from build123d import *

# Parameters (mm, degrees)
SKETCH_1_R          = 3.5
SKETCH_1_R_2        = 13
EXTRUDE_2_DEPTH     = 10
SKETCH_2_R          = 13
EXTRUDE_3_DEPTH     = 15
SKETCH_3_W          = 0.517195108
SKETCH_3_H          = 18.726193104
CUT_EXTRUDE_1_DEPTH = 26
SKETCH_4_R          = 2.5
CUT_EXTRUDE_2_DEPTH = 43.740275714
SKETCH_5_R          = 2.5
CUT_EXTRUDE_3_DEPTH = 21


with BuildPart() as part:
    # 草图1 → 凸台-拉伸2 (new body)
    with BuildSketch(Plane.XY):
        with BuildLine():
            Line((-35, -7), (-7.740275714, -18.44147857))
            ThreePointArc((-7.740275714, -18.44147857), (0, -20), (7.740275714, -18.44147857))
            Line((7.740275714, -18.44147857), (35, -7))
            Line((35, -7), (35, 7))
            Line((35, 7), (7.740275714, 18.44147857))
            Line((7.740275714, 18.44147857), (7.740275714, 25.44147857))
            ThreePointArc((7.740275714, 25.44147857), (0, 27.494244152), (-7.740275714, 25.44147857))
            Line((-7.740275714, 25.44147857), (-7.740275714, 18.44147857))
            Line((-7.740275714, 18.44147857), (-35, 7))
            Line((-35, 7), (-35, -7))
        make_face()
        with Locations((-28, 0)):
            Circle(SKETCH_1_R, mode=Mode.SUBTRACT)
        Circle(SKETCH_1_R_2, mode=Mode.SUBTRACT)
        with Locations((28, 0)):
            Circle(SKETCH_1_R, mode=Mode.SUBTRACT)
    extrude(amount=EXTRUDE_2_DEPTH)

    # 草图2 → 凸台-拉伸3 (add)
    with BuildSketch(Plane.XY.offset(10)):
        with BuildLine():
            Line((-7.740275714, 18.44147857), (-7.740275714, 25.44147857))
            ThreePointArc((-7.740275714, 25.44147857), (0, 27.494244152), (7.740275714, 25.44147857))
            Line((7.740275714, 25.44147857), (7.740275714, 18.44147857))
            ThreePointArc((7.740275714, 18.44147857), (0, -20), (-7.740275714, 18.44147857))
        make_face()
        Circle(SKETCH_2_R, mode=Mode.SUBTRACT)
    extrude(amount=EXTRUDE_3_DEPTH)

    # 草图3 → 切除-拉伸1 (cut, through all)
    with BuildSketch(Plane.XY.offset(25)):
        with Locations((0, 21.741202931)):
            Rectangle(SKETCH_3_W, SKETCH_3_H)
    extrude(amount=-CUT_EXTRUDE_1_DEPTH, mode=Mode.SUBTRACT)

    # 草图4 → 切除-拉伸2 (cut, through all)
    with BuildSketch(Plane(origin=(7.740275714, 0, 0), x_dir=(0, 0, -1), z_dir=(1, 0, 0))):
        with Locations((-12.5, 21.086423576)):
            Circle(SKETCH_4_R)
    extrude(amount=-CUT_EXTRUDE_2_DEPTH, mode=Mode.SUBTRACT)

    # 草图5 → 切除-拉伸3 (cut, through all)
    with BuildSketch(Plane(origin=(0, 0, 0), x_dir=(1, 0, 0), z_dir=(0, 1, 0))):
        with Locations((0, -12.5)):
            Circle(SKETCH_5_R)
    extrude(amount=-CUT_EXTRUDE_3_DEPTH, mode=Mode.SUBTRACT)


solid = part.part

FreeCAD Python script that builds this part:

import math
import FreeCAD as App
import Part
import Sketcher
Q = App.Units.Quantity


def add_polygon(sketch, points):
    """Adds a closed chain of lines whose ends are joined by coincident constraints."""
    first, n = sketch.GeometryCount, len(points)
    for a, b in zip(points, points[1:] + points[:1]):
        sketch.addGeometry(Part.LineSegment(App.Vector(*a, 0), App.Vector(*b, 0)), False)
    for i in range(n):
        sketch.addConstraint(Sketcher.Constraint("Coincident", first + i, 2, first + (i + 1) % n, 1))

doc = App.newDocument("Part")
body = doc.addObject("PartDesign::Body", "Body")

# Sketch on XY plane
sketch1 = body.newObject("Sketcher::SketchObject", "Sketch")
sketch1.AttachmentSupport = (doc.getObject("XY_Plane"), [""])
sketch1.MapMode = "FlatFace"
sketch1.addGeometry([
    Part.LineSegment(App.Vector(-35, -7, 0), App.Vector(-7.7, -18.4, 0)),  # 0
    Part.ArcOfCircle(Part.Circle(App.Vector(0, 0, 0), App.Vector(0, 0, 1), 20), math.radians(-113), math.radians(-67)),  # 1
    Part.LineSegment(App.Vector(7.7, -18.4, 0), App.Vector(35, -7, 0)),  # 2
    Part.LineSegment(App.Vector(35, -7, 0), App.Vector(35, 7, 0)),  # 3
    Part.LineSegment(App.Vector(35, 7, 0), App.Vector(7.7, 18.4, 0)),  # 4
    Part.LineSegment(App.Vector(7.7, 18.4, 0), App.Vector(7.7, 25.4, 0)),  # 5
    Part.ArcOfCircle(Part.Circle(App.Vector(0, 11.9, 0), App.Vector(0, 0, 1), 15.6), math.radians(60), math.radians(120)),  # 6
    Part.LineSegment(App.Vector(-7.7, 25.4, 0), App.Vector(-7.7, 18.4, 0)),  # 7
    Part.LineSegment(App.Vector(-7.7, 18.4, 0), App.Vector(-35, 7, 0)),  # 8
    Part.LineSegment(App.Vector(-35, 7, 0), App.Vector(-35, -7, 0)),  # 9
    Part.Circle(App.Vector(-28, 0, 0), App.Vector(0, 0, 1), 3.5),  # 10
    Part.Circle(App.Vector(0, 0, 0), App.Vector(0, 0, 1), 13),  # 11
    Part.Circle(App.Vector(28, 0, 0), App.Vector(0, 0, 1), 3.5),  # 12
], False)
sketch1.addConstraint([
    Sketcher.Constraint("Tangent", 0, 2, 1, 1),
    Sketcher.Constraint("Tangent", 1, 2, 2, 1),
    Sketcher.Constraint("Coincident", 2, 2, 3, 1),
    Sketcher.Constraint("Coincident", 3, 2, 4, 1),
    Sketcher.Constraint("Coincident", 4, 2, 5, 1),
    Sketcher.Constraint("Coincident", 5, 2, 6, 1),
    Sketcher.Constraint("Coincident", 6, 2, 7, 1),
    Sketcher.Constraint("Coincident", 7, 2, 8, 1),
    Sketcher.Constraint("Coincident", 8, 2, 9, 1),
    Sketcher.Constraint("Coincident", 9, 2, 0, 1),
    Sketcher.Constraint("Vertical", 3),
    Sketcher.Constraint("Vertical", 5),
    Sketcher.Constraint("Vertical", 7),
    Sketcher.Constraint("Vertical", 9),
    Sketcher.Constraint("Coincident", 1, 3, -1, 1),
    Sketcher.Constraint("Coincident", 11, 3, -1, 1),
    Sketcher.Constraint("Equal", 10, 12),
    Sketcher.Constraint("Symmetric", 10, 3, 12, 3, -1, 1),
    Sketcher.Constraint("Symmetric", 0, 2, 4, 2, -1, 1),
    Sketcher.Constraint("Symmetric", 1, 2, 7, 2, -1, 1),
    Sketcher.Constraint("Symmetric", 2, 2, 8, 2, -1, 1),
    Sketcher.Constraint("Symmetric", 5, 2, 6, 2, -2),
    Sketcher.Constraint("PointOnObject", 10, 3, -1),
    Sketcher.Constraint("Parallel", 0, 4),
    Sketcher.Constraint("Diameter", 10, Q("7 mm")),
    Sketcher.Constraint("Diameter", 11, Q("26 mm")),
    Sketcher.Constraint("Radius", 1, Q("20 mm")),
    Sketcher.Constraint("DistanceY", 3, 1, 3, 2, Q("14 mm")),
    Sketcher.Constraint("DistanceY", 5, 1, 5, 2, Q("7 mm")),
    Sketcher.Constraint("DistanceX", 10, 3, -1, 1, Q("28 mm")),
    Sketcher.Constraint("DistanceX", -1, 1, 2, 2, Q("35 mm")),
    Sketcher.Constraint("Radius", 6, Q("15.619347 mm")),
])
pad1 = body.newObject("PartDesign::Pad", "Pad")
pad1.Profile = sketch1
pad1.Length = 10

# Sketch on XY plane
sketch2 = body.newObject("Sketcher::SketchObject", "Sketch001")
sketch2.AttachmentSupport = (doc.getObject("XY_Plane"), [""])
sketch2.MapMode = "FlatFace"
sketch2.AttachmentOffset = App.Placement(App.Vector(0, 0, 10), App.Rotation())
sketch2.addGeometry([
    Part.LineSegment(App.Vector(-8, 25, 0), App.Vector(-8, 18, 0)),  # 0
    Part.ArcOfCircle(Part.Circle(App.Vector(0, 0, 0), App.Vector(0, 0, 1), 20), math.radians(113), math.radians(427)),  # 1
    Part.LineSegment(App.Vector(8, 18, 0), App.Vector(8, 25, 0)),  # 2
    Part.ArcOfCircle(Part.Circle(App.Vector(0, 12, 0), App.Vector(0, 0, 1), 16), math.radians(60), math.radians(120)),  # 3
    Part.Circle(App.Vector(0, 0, 0), App.Vector(0, 0, 1), 13),  # 4
], False)
sketch2.addConstraint([
    Sketcher.Constraint("Coincident", 0, 2, 1, 1),
    Sketcher.Constraint("Coincident", 1, 2, 2, 1),
    Sketcher.Constraint("Coincident", 2, 2, 3, 1),
    Sketcher.Constraint("Coincident", 3, 2, 0, 1),
    Sketcher.Constraint("Vertical", 0),
    Sketcher.Constraint("Vertical", 2),
    Sketcher.Constraint("Coincident", 1, 3, -1, 1),
    Sketcher.Constraint("Coincident", 4, 3, -1, 1),
    Sketcher.Constraint("Symmetric", 2, 2, 3, 2, -2),
    Sketcher.Constraint("Diameter", 4, Q("26 mm")),
    Sketcher.Constraint("Radius", 1, Q("20 mm")),
    Sketcher.Constraint("DistanceY", 0, 2, 0, 1, Q("7 mm")),
    Sketcher.Constraint("Radius", 3, Q("15.619347 mm")),
    Sketcher.Constraint("DistanceY", -1, 1, 0, 2, Q("18.441479 mm")),
])
pad2 = body.newObject("PartDesign::Pad", "Pad001")
pad2.Profile = sketch2
pad2.Length = 15

# Sketch on XY plane
sketch3 = body.newObject("Sketcher::SketchObject", "Sketch002")
sketch3.AttachmentSupport = (doc.getObject("XY_Plane"), [""])
sketch3.MapMode = "FlatFace"
sketch3.AttachmentOffset = App.Placement(App.Vector(0, 0, 25), App.Rotation())
add_polygon(sketch3, [(-0.3, 31.1), (-0.3, 12.4), (0.3, 12.4), (0.3, 31.1)])  # lines 0-3
sketch3.addConstraint([
    Sketcher.Constraint("Vertical", 0),
    Sketcher.Constraint("Horizontal", 1),
    Sketcher.Constraint("Vertical", 2),
    Sketcher.Constraint("Horizontal", 3),
    Sketcher.Constraint("DistanceY", -1, 1, 2, 2, Q("31.104299 mm")),
    Sketcher.Constraint("DistanceX", 1, 1, 1, 2, Q("0.517195 mm")),
    Sketcher.Constraint("DistanceY", 0, 2, 0, 1, Q("18.726193 mm")),
    Sketcher.Constraint("DistanceX", 0, 2, -1, 1, Q("0.258598 mm")),
])
pocket1 = body.newObject("PartDesign::Pocket", "Pocket")
pocket1.Profile = sketch3
pocket1.Type = "ThroughAll"

# Sketch on YZ plane
sketch4 = body.newObject("Sketcher::SketchObject", "Sketch003")
sketch4.AttachmentSupport = (doc.getObject("YZ_Plane"), [""])
sketch4.MapMode = "FlatFace"
sketch4.AttachmentOffset = App.Placement(App.Vector(0, 0, 7.740276), App.Rotation())
sketch4.addGeometry(Part.Circle(App.Vector(21.1, 12.5, 0), App.Vector(0, 0, 1), 2.5), False)
sketch4.addConstraint([
    Sketcher.Constraint("Diameter", 0, Q("5 mm")),
    Sketcher.Constraint("DistanceY", -1, 1, 0, 3, Q("12.5 mm")),
    Sketcher.Constraint("DistanceX", -1, 1, 0, 3, Q("21.086424 mm")),
])
pocket2 = body.newObject("PartDesign::Pocket", "Pocket001")
pocket2.Profile = sketch4
pocket2.Type = "ThroughAll"

# Sketch on XZ plane
sketch5 = body.newObject("Sketcher::SketchObject", "Sketch004")
sketch5.AttachmentSupport = (doc.getObject("XZ_Plane"), [""])
sketch5.MapMode = "FlatFace"
sketch5.addGeometry(Part.Circle(App.Vector(0, 12.5, 0), App.Vector(0, 0, 1), 2.5), False)
sketch5.addConstraint([
    Sketcher.Constraint("PointOnObject", 0, 3, -2),
    Sketcher.Constraint("Diameter", 0, Q("5 mm")),
    Sketcher.Constraint("DistanceY", -1, 1, 0, 3, Q("12.5 mm")),
])
pocket3 = body.newObject("PartDesign::Pocket", "Pocket002")
pocket3.Profile = sketch5
pocket3.Type = "ThroughAll"
pocket3.Reversed = True

doc.recompute()
